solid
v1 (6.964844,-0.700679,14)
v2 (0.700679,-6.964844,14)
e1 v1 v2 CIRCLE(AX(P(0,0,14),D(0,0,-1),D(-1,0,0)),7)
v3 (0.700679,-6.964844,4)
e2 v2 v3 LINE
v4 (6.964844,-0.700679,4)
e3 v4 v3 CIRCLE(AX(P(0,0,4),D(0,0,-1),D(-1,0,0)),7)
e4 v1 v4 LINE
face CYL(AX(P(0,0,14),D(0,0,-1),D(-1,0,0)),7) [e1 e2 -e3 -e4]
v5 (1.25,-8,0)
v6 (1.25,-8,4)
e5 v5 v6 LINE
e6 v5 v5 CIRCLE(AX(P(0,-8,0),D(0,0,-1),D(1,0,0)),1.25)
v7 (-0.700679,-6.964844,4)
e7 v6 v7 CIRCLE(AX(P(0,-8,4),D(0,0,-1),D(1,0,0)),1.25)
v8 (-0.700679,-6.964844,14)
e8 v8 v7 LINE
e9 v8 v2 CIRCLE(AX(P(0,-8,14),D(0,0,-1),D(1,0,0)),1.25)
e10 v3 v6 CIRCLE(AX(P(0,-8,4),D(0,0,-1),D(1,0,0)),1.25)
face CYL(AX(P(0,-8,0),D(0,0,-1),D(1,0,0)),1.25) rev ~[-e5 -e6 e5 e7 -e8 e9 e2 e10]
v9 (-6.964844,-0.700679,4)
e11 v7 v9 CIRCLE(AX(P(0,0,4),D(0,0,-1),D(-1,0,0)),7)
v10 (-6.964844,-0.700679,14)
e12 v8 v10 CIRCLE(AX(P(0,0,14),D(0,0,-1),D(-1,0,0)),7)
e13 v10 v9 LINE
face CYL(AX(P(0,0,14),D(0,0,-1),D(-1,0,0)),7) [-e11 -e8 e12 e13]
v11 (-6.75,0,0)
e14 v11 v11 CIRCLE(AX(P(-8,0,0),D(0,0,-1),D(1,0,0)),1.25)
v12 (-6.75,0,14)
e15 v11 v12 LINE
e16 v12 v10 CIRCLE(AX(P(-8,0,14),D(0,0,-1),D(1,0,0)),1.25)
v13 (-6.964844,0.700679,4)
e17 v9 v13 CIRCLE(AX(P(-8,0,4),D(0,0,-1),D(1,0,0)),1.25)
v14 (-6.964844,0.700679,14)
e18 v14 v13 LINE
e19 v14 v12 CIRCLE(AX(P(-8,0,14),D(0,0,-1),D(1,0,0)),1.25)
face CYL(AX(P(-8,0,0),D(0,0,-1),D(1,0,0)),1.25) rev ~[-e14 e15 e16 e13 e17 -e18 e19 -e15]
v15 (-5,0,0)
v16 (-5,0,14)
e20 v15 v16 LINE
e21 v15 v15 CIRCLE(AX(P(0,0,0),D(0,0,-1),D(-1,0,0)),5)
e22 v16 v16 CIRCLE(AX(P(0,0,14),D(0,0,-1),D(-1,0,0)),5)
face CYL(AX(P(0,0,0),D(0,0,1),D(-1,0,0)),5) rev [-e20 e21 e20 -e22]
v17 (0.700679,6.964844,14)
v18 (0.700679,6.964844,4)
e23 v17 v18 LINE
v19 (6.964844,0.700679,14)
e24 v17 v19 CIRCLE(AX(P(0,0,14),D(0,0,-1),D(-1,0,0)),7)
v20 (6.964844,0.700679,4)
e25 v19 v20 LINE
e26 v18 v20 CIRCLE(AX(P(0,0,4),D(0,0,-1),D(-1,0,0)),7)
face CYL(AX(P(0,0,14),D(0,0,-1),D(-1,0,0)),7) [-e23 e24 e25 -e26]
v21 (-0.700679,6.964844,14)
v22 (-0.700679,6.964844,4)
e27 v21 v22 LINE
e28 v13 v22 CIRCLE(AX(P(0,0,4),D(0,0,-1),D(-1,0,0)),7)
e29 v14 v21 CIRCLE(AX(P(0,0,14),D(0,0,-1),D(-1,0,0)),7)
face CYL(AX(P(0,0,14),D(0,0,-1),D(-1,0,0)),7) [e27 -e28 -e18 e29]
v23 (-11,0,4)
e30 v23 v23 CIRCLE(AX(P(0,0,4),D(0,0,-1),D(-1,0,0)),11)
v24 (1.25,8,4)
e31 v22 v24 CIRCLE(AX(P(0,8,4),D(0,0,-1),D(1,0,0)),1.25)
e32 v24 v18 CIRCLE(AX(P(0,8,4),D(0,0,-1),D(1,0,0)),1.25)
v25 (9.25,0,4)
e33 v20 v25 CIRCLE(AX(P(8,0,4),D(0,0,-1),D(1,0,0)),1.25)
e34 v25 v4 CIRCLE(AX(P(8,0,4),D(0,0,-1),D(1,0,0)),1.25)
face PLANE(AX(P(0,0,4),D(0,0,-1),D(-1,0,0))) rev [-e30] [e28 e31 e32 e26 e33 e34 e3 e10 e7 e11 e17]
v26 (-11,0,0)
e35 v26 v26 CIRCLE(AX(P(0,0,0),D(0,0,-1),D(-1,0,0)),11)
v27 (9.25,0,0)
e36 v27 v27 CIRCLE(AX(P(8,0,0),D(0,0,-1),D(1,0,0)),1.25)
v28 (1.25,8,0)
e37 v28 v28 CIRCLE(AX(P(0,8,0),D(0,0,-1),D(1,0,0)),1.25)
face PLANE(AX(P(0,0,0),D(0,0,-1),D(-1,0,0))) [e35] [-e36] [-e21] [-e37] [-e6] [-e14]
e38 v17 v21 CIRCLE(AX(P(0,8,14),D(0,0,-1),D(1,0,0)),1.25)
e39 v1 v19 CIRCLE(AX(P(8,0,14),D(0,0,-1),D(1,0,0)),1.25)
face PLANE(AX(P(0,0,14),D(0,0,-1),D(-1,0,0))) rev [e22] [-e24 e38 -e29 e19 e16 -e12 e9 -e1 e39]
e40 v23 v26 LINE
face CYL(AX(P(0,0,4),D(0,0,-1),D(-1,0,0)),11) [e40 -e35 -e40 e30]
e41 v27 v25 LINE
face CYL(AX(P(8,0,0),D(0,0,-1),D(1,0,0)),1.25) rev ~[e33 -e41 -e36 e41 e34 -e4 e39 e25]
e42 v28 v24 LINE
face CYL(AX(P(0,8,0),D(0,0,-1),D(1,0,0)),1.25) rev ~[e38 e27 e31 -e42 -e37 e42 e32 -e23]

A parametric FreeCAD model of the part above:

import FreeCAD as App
import Part
import Sketcher

V = App.Vector


def add_polygon(sketch, points):
    """Adds a closed chain of lines whose ends are joined by coincident constraints."""
    first, n = sketch.GeometryCount, len(points)
    for a, b in zip(points, points[1:] + points[:1]):
        sketch.addGeometry(Part.LineSegment(App.Vector(*a, 0), App.Vector(*b, 0)), False)
    for i in range(n):
        sketch.addConstraint(Sketcher.Constraint("Coincident", first + i, 2, first + (i + 1) % n, 1))

doc = App.newDocument("Part")
body = doc.addObject("PartDesign::Body", "Body")

sketch1 = body.newObject("Sketcher::SketchObject", "Sketch")
sketch1.AttachmentSupport = (doc.getObject("XZ_Plane"), [""])
sketch1.MapMode = "FlatFace"
add_polygon(sketch1, [(-5, 0), (-5, 14), (-7, 14), (-7, 4), (-11, 4), (-11, 0)])
sketch1.addConstraint([
    Sketcher.Constraint("Vertical", 0),
    Sketcher.Constraint("Horizontal", 1),
    Sketcher.Constraint("Vertical", 2),
    Sketcher.Constraint("Horizontal", 3),
    Sketcher.Constraint("Vertical", 4),
    Sketcher.Constraint("Horizontal", 5),
    Sketcher.Constraint("PointOnObject", 4, 2, -1),
    Sketcher.Constraint("Equal", 3, 4),
    Sketcher.Constraint("DistanceX", 1, 2, 1, 1, 2.0),
    Sketcher.Constraint("DistanceX", 3, 2, 3, 1, 4.0),
    Sketcher.Constraint("DistanceY", 0, 1, 0, 2, 14.0),
    Sketcher.Constraint("DistanceX", 0, 2, -1, 1, 5.0),
])
revolution = body.newObject("PartDesign::Revolution", "Revolution")
revolution.Profile = sketch1
revolution.ReferenceAxis = (sketch1, ["V_Axis"])
revolution.Angle = 360

sketch2 = body.newObject("Sketcher::SketchObject", "Sketch001")
sketch2.AttachmentSupport = (doc.getObject("XY_Plane"), [""])
sketch2.MapMode = "FlatFace"
sketch2.addGeometry([
    Part.Circle(V(0, -8, 0), V(0, 0, 1), 1.2),
    Part.Circle(V(-8, 0, 0), V(0, 0, 1), 1.2),
    Part.Circle(V(8, 0, 0), V(0, 0, 1), 1.2),
    Part.Circle(V(0, 8, 0), V(0, 0, 1), 1.2),
], False)
sketch2.addConstraint([
    Sketcher.Constraint("Equal", 0, 1),
    Sketcher.Constraint("Equal", 1, 2),
    Sketcher.Constraint("Equal", 2, 3),
    Sketcher.Constraint("Symmetric", 1, 3, 2, 3, -1, 1),
    Sketcher.Constraint("Symmetric", 0, 3, 3, 3, -1, 1),
    Sketcher.Constraint("PointOnObject", 0, 3, -2),
    Sketcher.Constraint("PointOnObject", 1, 3, -1),
    Sketcher.Constraint("Diameter", 0, 2.5),
    Sketcher.Constraint("DistanceY", 0, 3, -1, 1, 8.0),
    Sketcher.Constraint("DistanceX", 1, 3, -1, 1, 8.0),
])
pocket1 = body.newObject("PartDesign::Pocket", "Pocket")
pocket1.Profile = sketch2
pocket1.Length = 14
pocket1.Reversed = True

doc.recompute()
